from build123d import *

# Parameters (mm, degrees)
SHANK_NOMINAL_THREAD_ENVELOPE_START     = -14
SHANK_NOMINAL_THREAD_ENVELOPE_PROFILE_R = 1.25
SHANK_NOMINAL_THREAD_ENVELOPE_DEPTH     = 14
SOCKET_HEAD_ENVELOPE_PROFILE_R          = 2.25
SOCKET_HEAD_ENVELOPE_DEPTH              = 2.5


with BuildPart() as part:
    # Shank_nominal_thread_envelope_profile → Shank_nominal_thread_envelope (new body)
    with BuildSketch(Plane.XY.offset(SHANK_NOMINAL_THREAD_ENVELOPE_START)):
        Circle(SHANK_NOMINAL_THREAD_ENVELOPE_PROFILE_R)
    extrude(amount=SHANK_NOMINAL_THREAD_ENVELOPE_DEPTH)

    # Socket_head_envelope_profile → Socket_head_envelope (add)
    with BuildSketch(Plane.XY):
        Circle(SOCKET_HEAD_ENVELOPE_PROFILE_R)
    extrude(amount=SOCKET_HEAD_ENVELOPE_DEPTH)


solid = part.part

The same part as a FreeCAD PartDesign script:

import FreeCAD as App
import Part
import Sketcher
Q = App.Units.Quantity

doc = App.newDocument("Part")
body = doc.addObject("PartDesign::Body", "Body")

# Sketch on XY plane
sketch1 = doc.addObject("Sketcher::SketchObject", "Sketch")
body.addObject(sketch1)
sketch1.AttachmentSupport = (doc.XY_Plane, [""])
sketch1.MapMode = "FlatFace"
sketch1.AttachmentOffset = App.Placement(App.Vector(0, 0, -14), App.Rotation())
sketch1.addGeometry(Part.Circle(App.Vector(0, 0, 0), App.Vector(0, 0, 1), 1.2), False)
sketch1.addConstraint([
    Sketcher.Constraint("Coincident", 0, 3, -1, 1),
    Sketcher.Constraint("Diameter", 0, Q("2.5 mm")),
])
pad1 = doc.addObject("PartDesign::Pad", "Pad")
body.addObject(pad1)
pad1.Profile = sketch1
pad1.Length = 14

# Sketch on XY plane
sketch2 = doc.addObject("Sketcher::SketchObject", "Sketch001")
body.addObject(sketch2)
sketch2.AttachmentSupport = (doc.XY_Plane, [""])
sketch2.MapMode = "FlatFace"
sketch2.addGeometry(Part.Circle(App.Vector(0, 0, 0), App.Vector(0, 0, 1), 2.2), False)
sketch2.addConstraint([
    Sketcher.Constraint("Coincident", 0, 3, -1, 1),
    Sketcher.Constraint("Diameter", 0, Q("4.5 mm")),
])
pad2 = doc.addObject("PartDesign::Pad", "Pad001")
body.addObject(pad2)
pad2.Profile = sketch2
pad2.Length = 2.5

doc.recompute()
